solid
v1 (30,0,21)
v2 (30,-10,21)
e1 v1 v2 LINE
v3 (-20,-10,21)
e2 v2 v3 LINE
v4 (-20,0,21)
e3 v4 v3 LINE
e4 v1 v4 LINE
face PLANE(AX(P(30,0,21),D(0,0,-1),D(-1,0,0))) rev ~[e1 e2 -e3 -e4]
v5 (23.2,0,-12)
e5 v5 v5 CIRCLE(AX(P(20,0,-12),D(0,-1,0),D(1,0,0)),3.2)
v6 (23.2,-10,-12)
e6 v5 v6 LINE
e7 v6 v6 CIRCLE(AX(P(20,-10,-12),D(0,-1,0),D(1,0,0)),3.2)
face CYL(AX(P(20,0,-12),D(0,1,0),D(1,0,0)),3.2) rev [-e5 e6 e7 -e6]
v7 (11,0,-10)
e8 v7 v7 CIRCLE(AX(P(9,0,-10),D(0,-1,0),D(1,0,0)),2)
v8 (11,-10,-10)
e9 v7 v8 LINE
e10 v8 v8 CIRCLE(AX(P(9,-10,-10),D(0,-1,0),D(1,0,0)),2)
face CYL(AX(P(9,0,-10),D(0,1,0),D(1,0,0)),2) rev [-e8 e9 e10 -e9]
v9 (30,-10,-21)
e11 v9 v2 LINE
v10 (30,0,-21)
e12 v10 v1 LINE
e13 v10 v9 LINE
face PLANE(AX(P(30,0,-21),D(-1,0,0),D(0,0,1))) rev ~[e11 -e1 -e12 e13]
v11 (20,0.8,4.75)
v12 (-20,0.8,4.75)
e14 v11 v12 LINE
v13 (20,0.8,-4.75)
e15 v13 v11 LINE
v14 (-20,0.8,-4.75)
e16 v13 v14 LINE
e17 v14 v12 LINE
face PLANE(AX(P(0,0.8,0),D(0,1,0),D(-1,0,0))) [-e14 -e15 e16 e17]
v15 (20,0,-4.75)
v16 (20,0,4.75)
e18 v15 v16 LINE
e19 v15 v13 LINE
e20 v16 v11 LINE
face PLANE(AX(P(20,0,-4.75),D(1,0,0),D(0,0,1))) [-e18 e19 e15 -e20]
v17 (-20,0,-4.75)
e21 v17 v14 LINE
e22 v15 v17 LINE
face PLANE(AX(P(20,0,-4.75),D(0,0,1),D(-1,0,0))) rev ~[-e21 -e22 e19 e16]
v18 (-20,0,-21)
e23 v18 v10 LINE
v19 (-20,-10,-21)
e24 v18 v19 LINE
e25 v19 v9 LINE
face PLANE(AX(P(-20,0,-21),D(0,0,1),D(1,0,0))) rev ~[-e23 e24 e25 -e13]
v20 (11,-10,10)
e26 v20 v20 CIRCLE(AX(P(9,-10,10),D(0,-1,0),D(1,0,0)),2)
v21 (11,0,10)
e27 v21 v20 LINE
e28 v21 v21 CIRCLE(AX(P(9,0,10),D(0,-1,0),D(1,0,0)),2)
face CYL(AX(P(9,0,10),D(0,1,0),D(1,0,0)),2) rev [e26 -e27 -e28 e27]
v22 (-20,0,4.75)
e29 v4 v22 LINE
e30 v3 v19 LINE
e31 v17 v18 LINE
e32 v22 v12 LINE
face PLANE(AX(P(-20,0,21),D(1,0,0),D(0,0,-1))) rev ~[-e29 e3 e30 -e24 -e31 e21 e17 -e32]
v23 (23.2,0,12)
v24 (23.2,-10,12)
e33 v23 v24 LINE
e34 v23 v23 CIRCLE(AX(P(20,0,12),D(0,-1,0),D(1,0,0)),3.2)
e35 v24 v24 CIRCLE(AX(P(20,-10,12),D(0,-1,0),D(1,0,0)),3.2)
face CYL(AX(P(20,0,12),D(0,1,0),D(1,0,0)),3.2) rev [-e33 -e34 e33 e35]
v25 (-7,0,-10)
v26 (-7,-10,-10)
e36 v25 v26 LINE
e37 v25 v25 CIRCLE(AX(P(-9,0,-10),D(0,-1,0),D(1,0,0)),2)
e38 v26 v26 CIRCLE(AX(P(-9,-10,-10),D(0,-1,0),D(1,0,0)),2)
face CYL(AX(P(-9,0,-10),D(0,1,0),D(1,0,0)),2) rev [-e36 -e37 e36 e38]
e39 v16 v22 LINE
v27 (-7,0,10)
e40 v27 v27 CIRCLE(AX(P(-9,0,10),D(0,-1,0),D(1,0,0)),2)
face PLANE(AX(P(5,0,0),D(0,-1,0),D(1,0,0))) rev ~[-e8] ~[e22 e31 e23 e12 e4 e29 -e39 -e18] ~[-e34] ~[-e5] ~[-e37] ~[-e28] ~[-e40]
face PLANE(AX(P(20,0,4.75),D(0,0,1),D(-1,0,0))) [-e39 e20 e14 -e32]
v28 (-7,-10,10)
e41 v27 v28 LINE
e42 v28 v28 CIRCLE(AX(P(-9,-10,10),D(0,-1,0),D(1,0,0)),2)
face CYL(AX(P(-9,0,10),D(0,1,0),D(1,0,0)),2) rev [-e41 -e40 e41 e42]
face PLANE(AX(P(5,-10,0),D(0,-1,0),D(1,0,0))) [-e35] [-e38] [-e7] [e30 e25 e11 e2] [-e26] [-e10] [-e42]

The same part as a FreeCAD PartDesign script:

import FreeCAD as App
import Part
import Sketcher

V = App.Vector
Q = App.Units.Quantity


def add_polygon(sketch, points):
    """Adds a closed chain of lines whose ends are joined by coincident constraints."""
    first, n = sketch.GeometryCount, len(points)
    for a, b in zip(points, points[1:] + points[:1]):
        sketch.addGeometry(Part.LineSegment(App.Vector(*a, 0), App.Vector(*b, 0)), False)
    for i in range(n):
        sketch.addConstraint(Sketcher.Constraint("Coincident", first + i, 2, first + (i + 1) % n, 1))

doc = App.newDocument("Part")
body = doc.addObject("PartDesign::Body", "Body")

# Sketch on XZ plane
sketch1 = body.newObject("Sketcher::SketchObject", "Sketch")
sketch1.AttachmentSupport = (doc.getObject("XZ_Plane"), [""])
sketch1.MapMode = "FlatFace"
add_polygon(sketch1, [(-20, -21), (30, -21), (30, 21), (-20, 21)])  # lines 0-3
sketch1.addGeometry(Part.Circle(V(20, -12, 0), V(0, 0, 1), 3.2), False)  # 4
sketch1.addGeometry(Part.Circle(V(20, 12, 0), V(0, 0, 1), 3.2), False)  # 5
sketch1.addConstraint([
    Sketcher.Constraint("Horizontal", 0),
    Sketcher.Constraint("Vertical", 1),
    Sketcher.Constraint("Horizontal", 2),
    Sketcher.Constraint("Vertical", 3),
    Sketcher.Constraint("Equal", 4, 5),
    Sketcher.Constraint("Symmetric", 4, 3, 5, 3, -1),
    Sketcher.Constraint("Diameter", 4, Q("6.4 mm")),
    Sketcher.Constraint("DistanceX", 0, 1, 0, 2, Q("50 mm")),
    Sketcher.Constraint("DistanceY", 1, 1, 1, 2, Q("42 mm")),
    Sketcher.Constraint("DistanceX", -1, 1, 4, 3, Q("20 mm")),
    Sketcher.Constraint("DistanceY", 4, 3, -1, 1, Q("12 mm")),
    Sketcher.Constraint("DistanceX", -1, 1, 0, 2, Q("30 mm")),
    Sketcher.Constraint("DistanceY", 0, 2, -1, 1, Q("21 mm")),
])
pad1 = body.newObject("PartDesign::Pad", "Pad")
pad1.Profile = sketch1
pad1.Length = 10

# Sketch on XZ plane
sketch2 = body.newObject("Sketcher::SketchObject", "Sketch001")
sketch2.AttachmentSupport = (doc.getObject("XZ_Plane"), [""])
sketch2.MapMode = "FlatFace"
sketch2.addGeometry([
    Part.Circle(V(-9, 10, 0), V(0, 0, 1), 2),
    Part.Circle(V(-9, -10, 0), V(0, 0, 1), 2),
    Part.Circle(V(9, 10, 0), V(0, 0, 1), 2),
    Part.Circle(V(9, -10, 0), V(0, 0, 1), 2),
], False)
sketch2.addConstraint([
    Sketcher.Constraint("Equal", 0, 1),
    Sketcher.Constraint("Equal", 1, 2),
    Sketcher.Constraint("Equal", 2, 3),
    Sketcher.Constraint("Symmetric", 1, 3, 2, 3, -1, 1),
    Sketcher.Constraint("Symmetric", 0, 3, 3, 3, -1, 1),
    Sketcher.Constraint("Symmetric", 0, 3, 2, 3, -2),
    Sketcher.Constraint("Diameter", 0, Q("4 mm")),
    Sketcher.Constraint("DistanceX", 0, 3, -1, 1, Q("9 mm")),
    Sketcher.Constraint("DistanceY", -1, 1, 0, 3, Q("10 mm")),
])
pocket1 = body.newObject("PartDesign::Pocket", "Pocket")
pocket1.Profile = sketch2
pocket1.Type = "ThroughAll"
pocket1.Reversed = True

# Sketch on XZ plane
sketch3 = body.newObject("Sketcher::SketchObject", "Sketch002")
sketch3.AttachmentSupport = (doc.getObject("XZ_Plane"), [""])
sketch3.MapMode = "FlatFace"
add_polygon(sketch3, [(20, 5), (20, -5), (-20, -5), (-20, 5)])  # lines 0-3
sketch3.addConstraint([
    Sketcher.Constraint("Vertical", 0),
    Sketcher.Constraint("Horizontal", 1),
    Sketcher.Constraint("Vertical", 2),
    Sketcher.Constraint("Horizontal", 3),
    Sketcher.Constraint("Symmetric", 0, 2, 2, 2, -1, 1),
    Sketcher.Constraint("DistanceX", 1, 2, 1, 1, Q("40 mm")),
    Sketcher.Constraint("DistanceY", 0, 2, 0, 1, Q("9.5 mm")),
])
pad2 = body.newObject("PartDesign::Pad", "Pad001")
pad2.Profile = sketch3
pad2.Length = 0.8
pad2.Reversed = True

doc.recompute()
